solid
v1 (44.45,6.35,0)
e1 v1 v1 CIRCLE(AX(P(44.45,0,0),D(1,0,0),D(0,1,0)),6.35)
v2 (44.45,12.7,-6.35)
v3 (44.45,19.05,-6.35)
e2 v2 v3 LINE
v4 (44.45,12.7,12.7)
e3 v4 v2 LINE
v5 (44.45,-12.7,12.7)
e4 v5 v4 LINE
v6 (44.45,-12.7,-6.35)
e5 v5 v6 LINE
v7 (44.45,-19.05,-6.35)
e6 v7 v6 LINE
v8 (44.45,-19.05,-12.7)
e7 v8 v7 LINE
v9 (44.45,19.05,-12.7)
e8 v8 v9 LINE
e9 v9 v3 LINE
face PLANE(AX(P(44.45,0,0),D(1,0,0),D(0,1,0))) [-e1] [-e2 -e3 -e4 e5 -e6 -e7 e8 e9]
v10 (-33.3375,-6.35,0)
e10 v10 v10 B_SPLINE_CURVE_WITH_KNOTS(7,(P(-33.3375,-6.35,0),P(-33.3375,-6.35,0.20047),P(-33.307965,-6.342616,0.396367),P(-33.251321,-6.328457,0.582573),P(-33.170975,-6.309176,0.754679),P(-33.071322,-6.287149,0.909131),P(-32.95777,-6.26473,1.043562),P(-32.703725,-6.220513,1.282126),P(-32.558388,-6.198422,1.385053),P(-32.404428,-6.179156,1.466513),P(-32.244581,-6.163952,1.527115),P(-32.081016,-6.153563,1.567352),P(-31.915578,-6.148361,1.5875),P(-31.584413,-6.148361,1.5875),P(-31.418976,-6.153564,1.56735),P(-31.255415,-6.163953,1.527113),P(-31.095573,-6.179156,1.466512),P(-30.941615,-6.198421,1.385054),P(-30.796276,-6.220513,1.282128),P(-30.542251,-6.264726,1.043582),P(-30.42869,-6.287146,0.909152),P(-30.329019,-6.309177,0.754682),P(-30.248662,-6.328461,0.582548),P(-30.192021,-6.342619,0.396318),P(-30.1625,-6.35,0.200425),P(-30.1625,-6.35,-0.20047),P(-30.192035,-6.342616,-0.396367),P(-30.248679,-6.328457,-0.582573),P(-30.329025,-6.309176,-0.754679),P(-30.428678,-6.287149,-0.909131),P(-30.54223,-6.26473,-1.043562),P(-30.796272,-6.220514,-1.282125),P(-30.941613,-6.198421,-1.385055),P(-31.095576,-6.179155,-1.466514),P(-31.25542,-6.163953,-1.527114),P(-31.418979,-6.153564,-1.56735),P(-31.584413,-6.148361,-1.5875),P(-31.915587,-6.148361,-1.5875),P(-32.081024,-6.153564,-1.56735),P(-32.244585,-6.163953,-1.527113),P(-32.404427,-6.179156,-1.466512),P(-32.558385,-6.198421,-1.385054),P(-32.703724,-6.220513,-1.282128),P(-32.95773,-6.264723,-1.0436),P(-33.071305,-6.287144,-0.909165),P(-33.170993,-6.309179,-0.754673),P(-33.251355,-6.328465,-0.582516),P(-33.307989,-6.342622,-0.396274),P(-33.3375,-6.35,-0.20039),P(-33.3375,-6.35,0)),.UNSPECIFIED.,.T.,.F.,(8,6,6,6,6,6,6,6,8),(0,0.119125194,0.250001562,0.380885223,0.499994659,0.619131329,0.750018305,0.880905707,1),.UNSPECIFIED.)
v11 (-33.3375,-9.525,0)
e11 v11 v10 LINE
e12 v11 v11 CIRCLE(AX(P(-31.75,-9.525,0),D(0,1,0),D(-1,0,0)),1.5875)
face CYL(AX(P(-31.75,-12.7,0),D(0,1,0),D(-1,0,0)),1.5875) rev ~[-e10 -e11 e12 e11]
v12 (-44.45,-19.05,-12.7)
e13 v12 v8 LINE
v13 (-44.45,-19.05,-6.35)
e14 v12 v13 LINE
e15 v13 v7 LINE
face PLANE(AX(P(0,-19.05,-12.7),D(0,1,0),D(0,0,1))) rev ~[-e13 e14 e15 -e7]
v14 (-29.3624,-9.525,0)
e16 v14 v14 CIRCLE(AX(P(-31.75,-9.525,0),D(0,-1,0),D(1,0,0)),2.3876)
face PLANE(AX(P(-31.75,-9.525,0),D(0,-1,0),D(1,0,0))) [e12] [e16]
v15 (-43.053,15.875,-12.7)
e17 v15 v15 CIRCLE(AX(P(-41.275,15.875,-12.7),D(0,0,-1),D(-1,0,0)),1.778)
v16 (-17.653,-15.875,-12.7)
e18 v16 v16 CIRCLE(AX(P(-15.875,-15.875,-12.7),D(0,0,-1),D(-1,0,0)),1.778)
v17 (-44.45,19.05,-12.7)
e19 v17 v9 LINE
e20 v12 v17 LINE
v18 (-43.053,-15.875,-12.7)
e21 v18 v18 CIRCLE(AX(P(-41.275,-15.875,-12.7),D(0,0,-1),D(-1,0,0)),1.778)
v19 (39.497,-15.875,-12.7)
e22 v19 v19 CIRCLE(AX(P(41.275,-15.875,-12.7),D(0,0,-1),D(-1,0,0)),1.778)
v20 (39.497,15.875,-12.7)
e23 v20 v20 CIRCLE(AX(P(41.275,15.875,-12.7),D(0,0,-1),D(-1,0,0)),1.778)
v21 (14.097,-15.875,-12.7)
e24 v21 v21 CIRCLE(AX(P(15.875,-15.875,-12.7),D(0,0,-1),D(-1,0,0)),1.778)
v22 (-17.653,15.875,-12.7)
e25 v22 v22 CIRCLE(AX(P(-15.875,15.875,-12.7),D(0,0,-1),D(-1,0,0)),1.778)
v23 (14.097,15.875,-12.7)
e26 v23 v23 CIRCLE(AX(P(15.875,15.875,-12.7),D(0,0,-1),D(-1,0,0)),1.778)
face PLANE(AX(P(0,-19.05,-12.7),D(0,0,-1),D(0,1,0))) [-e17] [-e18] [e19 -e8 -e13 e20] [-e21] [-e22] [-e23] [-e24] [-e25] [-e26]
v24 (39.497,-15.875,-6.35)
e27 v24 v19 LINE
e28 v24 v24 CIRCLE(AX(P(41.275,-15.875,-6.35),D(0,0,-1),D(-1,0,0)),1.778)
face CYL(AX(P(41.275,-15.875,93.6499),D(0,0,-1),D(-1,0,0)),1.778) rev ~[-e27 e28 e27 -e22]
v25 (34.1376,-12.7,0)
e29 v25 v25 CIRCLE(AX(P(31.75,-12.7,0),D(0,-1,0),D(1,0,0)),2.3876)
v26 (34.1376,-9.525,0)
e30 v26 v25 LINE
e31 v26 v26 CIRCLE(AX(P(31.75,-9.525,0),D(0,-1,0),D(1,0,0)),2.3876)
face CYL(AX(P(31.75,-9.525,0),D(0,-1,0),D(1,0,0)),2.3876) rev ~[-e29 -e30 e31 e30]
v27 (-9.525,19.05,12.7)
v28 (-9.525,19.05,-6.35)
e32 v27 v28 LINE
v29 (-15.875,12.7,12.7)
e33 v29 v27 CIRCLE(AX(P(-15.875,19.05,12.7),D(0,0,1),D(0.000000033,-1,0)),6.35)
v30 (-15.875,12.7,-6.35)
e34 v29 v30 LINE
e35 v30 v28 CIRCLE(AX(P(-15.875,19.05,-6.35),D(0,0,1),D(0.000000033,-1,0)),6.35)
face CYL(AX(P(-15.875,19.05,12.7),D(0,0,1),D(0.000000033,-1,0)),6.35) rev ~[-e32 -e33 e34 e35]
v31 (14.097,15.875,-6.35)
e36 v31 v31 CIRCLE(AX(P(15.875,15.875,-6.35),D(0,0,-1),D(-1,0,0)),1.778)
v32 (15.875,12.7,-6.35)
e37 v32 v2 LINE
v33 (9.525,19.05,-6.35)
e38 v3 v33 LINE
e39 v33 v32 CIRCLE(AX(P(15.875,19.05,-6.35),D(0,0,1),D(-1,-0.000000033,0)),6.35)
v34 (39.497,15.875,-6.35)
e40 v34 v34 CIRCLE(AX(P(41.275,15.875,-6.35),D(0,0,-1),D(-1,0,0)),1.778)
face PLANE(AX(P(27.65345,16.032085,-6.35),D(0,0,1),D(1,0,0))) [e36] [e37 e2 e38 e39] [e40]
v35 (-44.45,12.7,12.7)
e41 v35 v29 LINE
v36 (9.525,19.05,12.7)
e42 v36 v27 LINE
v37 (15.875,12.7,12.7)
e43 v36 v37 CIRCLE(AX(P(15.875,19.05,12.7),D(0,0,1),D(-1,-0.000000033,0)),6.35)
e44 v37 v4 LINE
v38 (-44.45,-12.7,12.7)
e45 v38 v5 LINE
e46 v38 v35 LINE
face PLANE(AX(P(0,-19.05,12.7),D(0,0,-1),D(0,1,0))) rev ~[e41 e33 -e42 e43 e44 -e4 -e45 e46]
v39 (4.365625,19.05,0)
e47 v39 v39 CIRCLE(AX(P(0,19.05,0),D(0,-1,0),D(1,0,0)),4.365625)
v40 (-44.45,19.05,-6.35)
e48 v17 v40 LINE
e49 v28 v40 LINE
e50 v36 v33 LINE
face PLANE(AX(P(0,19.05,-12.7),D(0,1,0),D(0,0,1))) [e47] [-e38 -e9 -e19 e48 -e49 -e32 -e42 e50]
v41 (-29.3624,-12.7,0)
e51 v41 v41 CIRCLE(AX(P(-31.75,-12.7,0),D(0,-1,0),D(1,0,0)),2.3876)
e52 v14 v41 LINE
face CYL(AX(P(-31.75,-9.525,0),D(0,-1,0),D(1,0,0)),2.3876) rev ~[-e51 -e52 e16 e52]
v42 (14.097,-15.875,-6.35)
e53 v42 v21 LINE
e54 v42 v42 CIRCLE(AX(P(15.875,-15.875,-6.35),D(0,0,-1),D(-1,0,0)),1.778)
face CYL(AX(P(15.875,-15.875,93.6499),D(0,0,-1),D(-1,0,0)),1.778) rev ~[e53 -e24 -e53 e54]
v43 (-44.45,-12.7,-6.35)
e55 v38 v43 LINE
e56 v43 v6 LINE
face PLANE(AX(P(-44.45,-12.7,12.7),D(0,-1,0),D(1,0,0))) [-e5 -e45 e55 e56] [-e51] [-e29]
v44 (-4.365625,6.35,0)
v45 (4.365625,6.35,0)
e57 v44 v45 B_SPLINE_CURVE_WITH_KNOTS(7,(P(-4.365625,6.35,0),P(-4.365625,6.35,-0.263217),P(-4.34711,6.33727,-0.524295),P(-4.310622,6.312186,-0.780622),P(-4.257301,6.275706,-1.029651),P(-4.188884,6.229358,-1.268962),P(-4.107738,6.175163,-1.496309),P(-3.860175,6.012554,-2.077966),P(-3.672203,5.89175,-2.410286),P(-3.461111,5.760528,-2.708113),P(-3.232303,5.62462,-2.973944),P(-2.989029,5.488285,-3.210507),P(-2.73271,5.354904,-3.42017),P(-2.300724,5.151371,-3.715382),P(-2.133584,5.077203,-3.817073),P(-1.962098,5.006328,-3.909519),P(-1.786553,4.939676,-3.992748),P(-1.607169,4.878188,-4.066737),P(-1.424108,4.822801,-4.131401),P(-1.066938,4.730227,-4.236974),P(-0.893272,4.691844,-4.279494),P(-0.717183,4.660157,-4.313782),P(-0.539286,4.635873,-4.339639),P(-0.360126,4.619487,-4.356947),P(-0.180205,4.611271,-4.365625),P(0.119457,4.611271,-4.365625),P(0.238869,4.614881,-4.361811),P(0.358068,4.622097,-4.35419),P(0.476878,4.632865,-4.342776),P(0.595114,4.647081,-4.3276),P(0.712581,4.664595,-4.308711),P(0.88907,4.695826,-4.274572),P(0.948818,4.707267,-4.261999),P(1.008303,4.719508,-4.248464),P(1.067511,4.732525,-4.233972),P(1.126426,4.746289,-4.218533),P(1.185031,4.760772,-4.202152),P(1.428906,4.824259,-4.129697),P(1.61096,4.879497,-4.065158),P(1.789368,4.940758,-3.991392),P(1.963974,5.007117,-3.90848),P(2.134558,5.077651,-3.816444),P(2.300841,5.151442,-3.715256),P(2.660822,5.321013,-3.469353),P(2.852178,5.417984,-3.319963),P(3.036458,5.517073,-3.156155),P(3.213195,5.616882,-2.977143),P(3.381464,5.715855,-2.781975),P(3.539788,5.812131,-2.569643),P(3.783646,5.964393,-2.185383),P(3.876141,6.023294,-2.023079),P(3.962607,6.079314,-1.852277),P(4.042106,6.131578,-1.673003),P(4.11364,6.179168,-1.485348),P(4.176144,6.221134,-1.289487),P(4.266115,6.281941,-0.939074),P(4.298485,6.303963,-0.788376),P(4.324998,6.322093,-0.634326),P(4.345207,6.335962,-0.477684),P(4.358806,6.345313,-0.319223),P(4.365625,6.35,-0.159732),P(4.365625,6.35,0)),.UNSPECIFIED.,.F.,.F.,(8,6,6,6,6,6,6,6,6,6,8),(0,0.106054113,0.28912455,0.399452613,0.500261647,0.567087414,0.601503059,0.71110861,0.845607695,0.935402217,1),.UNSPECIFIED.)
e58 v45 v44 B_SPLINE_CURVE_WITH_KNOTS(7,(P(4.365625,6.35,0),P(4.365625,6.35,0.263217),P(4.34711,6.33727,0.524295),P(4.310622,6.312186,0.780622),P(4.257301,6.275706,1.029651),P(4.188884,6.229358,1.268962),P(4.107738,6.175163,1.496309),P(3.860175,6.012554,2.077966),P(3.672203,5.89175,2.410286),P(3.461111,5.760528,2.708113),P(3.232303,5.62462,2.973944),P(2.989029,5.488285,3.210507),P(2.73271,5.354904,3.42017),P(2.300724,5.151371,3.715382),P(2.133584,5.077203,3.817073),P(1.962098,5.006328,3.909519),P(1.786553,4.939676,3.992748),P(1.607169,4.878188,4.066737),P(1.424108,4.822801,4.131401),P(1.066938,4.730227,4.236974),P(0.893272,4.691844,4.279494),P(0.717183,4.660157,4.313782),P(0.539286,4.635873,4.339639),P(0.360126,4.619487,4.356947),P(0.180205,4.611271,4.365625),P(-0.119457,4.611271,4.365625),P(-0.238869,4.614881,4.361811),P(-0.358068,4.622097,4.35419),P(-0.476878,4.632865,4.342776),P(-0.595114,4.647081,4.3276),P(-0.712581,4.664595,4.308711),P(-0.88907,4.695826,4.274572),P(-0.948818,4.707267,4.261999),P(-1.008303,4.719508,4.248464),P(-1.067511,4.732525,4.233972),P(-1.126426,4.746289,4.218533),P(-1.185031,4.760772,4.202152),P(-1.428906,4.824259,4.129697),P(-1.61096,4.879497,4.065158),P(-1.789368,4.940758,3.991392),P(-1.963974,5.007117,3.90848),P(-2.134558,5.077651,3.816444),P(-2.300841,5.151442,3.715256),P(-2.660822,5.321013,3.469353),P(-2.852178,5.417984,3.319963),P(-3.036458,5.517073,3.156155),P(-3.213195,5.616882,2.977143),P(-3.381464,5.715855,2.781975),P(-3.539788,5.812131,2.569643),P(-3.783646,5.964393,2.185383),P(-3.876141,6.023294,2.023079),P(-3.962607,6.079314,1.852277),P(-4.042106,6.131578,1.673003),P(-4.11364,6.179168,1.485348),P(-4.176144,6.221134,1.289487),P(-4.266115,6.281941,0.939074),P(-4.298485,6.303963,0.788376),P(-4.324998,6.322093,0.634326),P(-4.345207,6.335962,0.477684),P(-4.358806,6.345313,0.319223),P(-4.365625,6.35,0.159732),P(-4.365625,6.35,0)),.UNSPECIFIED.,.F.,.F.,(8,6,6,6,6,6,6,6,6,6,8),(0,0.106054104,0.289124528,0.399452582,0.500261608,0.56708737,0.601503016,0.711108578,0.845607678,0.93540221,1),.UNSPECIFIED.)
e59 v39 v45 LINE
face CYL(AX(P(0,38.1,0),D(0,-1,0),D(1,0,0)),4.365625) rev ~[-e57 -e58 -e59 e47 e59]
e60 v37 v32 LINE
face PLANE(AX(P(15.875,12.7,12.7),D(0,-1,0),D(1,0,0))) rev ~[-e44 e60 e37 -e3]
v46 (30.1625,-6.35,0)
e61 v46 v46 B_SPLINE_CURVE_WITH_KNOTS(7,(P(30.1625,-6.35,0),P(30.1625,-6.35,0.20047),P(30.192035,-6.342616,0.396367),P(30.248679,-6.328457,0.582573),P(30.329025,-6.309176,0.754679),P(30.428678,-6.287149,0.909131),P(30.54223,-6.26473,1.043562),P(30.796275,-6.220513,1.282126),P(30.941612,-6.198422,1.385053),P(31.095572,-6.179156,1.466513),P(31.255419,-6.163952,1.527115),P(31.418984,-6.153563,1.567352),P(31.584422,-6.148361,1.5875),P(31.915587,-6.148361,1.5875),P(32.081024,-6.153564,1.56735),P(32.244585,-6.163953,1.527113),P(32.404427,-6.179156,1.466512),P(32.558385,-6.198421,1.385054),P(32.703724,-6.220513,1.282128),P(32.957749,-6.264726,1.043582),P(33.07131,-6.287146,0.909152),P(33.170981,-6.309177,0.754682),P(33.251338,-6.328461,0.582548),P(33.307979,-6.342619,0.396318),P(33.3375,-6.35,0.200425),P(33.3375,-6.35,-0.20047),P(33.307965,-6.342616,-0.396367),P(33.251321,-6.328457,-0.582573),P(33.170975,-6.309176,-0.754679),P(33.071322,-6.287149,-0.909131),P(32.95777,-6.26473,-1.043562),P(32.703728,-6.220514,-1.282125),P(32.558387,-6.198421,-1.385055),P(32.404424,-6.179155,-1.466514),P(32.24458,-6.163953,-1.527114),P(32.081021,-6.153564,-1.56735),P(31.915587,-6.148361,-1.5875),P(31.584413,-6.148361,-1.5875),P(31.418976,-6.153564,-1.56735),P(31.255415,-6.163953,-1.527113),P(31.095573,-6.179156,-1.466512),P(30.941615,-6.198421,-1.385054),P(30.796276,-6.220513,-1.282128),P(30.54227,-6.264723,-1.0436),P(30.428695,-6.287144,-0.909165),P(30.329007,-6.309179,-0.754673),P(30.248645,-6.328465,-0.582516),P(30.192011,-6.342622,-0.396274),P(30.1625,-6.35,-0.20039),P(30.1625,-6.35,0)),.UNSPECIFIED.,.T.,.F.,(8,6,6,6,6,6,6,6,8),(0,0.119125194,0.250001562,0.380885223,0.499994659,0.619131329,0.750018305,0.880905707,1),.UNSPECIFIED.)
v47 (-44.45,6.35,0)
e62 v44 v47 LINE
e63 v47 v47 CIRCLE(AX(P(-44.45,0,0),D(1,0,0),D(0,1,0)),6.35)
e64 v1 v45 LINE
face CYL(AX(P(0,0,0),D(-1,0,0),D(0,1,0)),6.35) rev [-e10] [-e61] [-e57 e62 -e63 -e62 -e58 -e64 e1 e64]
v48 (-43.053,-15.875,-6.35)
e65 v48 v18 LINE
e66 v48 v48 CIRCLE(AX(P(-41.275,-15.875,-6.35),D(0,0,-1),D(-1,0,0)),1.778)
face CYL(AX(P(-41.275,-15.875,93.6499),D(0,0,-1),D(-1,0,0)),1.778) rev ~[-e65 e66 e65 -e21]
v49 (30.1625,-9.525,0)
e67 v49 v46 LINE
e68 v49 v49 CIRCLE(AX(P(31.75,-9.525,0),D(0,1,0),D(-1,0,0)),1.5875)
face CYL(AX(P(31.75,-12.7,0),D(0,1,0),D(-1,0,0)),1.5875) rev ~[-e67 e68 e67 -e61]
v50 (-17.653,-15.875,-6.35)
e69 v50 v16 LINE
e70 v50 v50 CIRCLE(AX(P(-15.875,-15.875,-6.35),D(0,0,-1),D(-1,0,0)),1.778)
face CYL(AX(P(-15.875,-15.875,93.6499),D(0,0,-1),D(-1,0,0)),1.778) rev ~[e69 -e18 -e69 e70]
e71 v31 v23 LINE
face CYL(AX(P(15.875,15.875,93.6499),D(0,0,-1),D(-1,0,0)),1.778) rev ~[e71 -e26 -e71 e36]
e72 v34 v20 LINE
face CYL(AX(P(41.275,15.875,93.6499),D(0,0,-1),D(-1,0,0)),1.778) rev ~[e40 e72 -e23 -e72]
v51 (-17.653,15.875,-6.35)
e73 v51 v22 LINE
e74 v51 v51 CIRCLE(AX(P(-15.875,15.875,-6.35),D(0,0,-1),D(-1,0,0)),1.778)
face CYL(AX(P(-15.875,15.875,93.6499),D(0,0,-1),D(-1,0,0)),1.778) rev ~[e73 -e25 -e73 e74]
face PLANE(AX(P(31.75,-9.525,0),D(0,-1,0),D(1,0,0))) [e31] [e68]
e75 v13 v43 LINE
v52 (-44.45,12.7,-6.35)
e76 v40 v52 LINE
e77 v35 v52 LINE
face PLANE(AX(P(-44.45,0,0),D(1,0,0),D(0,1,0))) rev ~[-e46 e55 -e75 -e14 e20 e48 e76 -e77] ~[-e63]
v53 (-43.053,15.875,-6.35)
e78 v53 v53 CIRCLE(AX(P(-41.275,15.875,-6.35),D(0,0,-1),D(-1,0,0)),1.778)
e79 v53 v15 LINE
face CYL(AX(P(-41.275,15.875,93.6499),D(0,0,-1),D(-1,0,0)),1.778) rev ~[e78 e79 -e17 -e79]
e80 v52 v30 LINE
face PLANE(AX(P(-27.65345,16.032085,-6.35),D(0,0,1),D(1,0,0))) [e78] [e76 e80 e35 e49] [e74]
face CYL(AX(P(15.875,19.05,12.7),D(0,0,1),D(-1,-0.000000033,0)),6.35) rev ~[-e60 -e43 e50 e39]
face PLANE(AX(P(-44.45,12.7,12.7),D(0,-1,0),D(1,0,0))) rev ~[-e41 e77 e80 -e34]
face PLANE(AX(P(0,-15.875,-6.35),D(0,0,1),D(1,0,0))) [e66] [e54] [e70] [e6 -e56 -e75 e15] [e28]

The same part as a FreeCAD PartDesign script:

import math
import FreeCAD as App
import Part
import Sketcher
from FreeCAD import Vector
Q = App.Units.Quantity


def add_polygon(sketch, points):
    """Adds a closed chain of lines whose ends are joined by coincident constraints."""
    first, n = sketch.GeometryCount, len(points)
    for a, b in zip(points, points[1:] + points[:1]):
        sketch.addGeometry(Part.LineSegment(App.Vector(*a, 0), App.Vector(*b, 0)), False)
    for i in range(n):
        sketch.addConstraint(Sketcher.Constraint("Coincident", first + i, 2, first + (i + 1) % n, 1))

doc = App.newDocument("Part")
body = doc.addObject("PartDesign::Body", "Body")

sketch1 = body.newObject("Sketcher::SketchObject", "Sketch")
sketch1.AttachmentSupport = (doc.getObject("YZ_Plane"), [""])
sketch1.MapMode = "FlatFace"
add_polygon(sketch1, [(-19, 13), (-19, -13), (19, -13), (19, 13)])
sketch1.addGeometry(Part.Circle(Vector(0, 0, 0), Vector(0, 0, 1), 6), False)
sketch1.addConstraint(Sketcher.Constraint("Vertical", 0))
sketch1.addConstraint(Sketcher.Constraint("Horizontal", 1))
sketch1.addConstraint(Sketcher.Constraint("Vertical", 2))
sketch1.addConstraint(Sketcher.Constraint("Horizontal", 3))
sketch1.addConstraint(Sketcher.Constraint("Coincident", 4, 3, -1, 1))
sketch1.addConstraint(Sketcher.Constraint("Symmetric", 0, 2, 2, 2, -1, 1))
sketch1.addConstraint(Sketcher.Constraint("Diameter", 4, Q("0.5 in")))
sketch1.addConstraint(Sketcher.Constraint("DistanceY", 0, 2, 0, 1, Q("1 in")))
sketch1.addConstraint(Sketcher.Constraint("DistanceX", 1, 1, 1, 2, Q("1.5 in")))
pad1 = body.newObject("PartDesign::Pad", "Pad")
pad1.Profile = sketch1
pad1.Length = Q("3.5 in")
pad1.Midplane = True

sketch2 = body.newObject("Sketcher::SketchObject", "Sketch001")
sketch2.AttachmentSupport = (doc.getObject("XY_Plane"), [""])
sketch2.MapMode = "FlatFace"
sketch2.AttachmentOffset = App.Placement(Vector(0, 0, 0.5 * 25.4), App.Rotation())
sketch2.addGeometry(Part.LineSegment(Vector(-10, 19, 0), Vector(-44, 19, 0)), False)
sketch2.addGeometry(Part.LineSegment(Vector(-44, 19, 0), Vector(-44, 13, 0)), False)
sketch2.addGeometry(Part.LineSegment(Vector(-44, 13, 0), Vector(-16, 13, 0)), False)
sketch2.addGeometry(Part.ArcOfCircle(Part.Circle(Vector(-16, 19, 0), Vector(0, 0, 1), 6), math.radians(-90), math.radians(0)), False)
sketch2.addGeometry(Part.LineSegment(Vector(44, 13, 0), Vector(44, 19, 0)), False)
sketch2.addGeometry(Part.LineSegment(Vector(44, 19, 0), Vector(10, 19, 0)), False)
sketch2.addGeometry(Part.ArcOfCircle(Part.Circle(Vector(16, 19, 0), Vector(0, 0, 1), 6), math.radians(-180), math.radians(-90)), False)
sketch2.addGeometry(Part.LineSegment(Vector(16, 13, 0), Vector(44, 13, 0)), False)
add_polygon(sketch2, [(-44, -13), (-44, -19), (44, -19), (44, -13)])
sketch2.addConstraint(Sketcher.Constraint("Coincident", 0, 2, 1, 1))
sketch2.addConstraint(Sketcher.Constraint("Coincident", 1, 2, 2, 1))
sketch2.addConstraint(Sketcher.Constraint("Tangent", 2, 2, 3, 1))
sketch2.addConstraint(Sketcher.Constraint("Coincident", 3, 2, 0, 1))
sketch2.addConstraint(Sketcher.Constraint("Coincident", 4, 2, 5, 1))
sketch2.addConstraint(Sketcher.Constraint("Coincident", 5, 2, 6, 1))
sketch2.addConstraint(Sketcher.Constraint("Tangent", 6, 2, 7, 1))
sketch2.addConstraint(Sketcher.Constraint("Coincident", 7, 2, 4, 1))
sketch2.addConstraint(Sketcher.Constraint("Horizontal", 0))
sketch2.addConstraint(Sketcher.Constraint("Vertical", 1))
sketch2.addConstraint(Sketcher.Constraint("Horizontal", 2))
sketch2.addConstraint(Sketcher.Constraint("Vertical", 4))
sketch2.addConstraint(Sketcher.Constraint("Horizontal", 5))
sketch2.addConstraint(Sketcher.Constraint("Horizontal", 7))
sketch2.addConstraint(Sketcher.Constraint("Vertical", 8))
sketch2.addConstraint(Sketcher.Constraint("Horizontal", 9))
sketch2.addConstraint(Sketcher.Constraint("Vertical", 10))
sketch2.addConstraint(Sketcher.Constraint("Horizontal", 11))
sketch2.addConstraint(Sketcher.Constraint("Equal", 3, 6))
sketch2.addConstraint(Sketcher.Constraint("Symmetric", 4, 2, 8, 2, -1, 1))
sketch2.addConstraint(Sketcher.Constraint("Symmetric", 0, 2, 9, 2, -1, 1))
sketch2.addConstraint(Sketcher.Constraint("Symmetric", 3, 3, 6, 3, -2))
sketch2.addConstraint(Sketcher.Constraint("Symmetric", 7, 2, 10, 2, -1))
sketch2.addConstraint(Sketcher.Constraint("Horizontal", 6, 3, 0, 2))
sketch2.addConstraint(Sketcher.Constraint("Radius", 3, Q("0.25 in")))
sketch2.addConstraint(Sketcher.Constraint("DistanceX", 9, 1, 9, 2, Q("3.5 in")))
sketch2.addConstraint(Sketcher.Constraint("DistanceX", 3, 2, 6, 3, Q("1 in")))
sketch2.addConstraint(Sketcher.Constraint("DistanceY", 10, 2, 7, 2, Q("1 in")))
pocket1 = body.newObject("PartDesign::Pocket", "Pocket")
pocket1.Profile = sketch2
pocket1.Length = Q("0.75 in")

sketch3 = body.newObject("Sketcher::SketchObject", "Sketch002")
sketch3.AttachmentSupport = (doc.getObject("XZ_Plane"), [""])
sketch3.MapMode = "FlatFace"
sketch3.AttachmentOffset = App.Placement(Vector(0, 0, -0.75 * 25.4), App.Rotation())
sketch3.addGeometry(Part.Circle(Vector(0, 0, 0), Vector(0, 0, 1), 4.4), False)
sketch3.addConstraint(Sketcher.Constraint("Coincident", 0, 3, -1, 1))
sketch3.addConstraint(Sketcher.Constraint("Diameter", 0, Q("0.34375 in")))
doc.recompute()
hole = body.newObject("PartDesign::Hole", "Hole")
hole.Profile = sketch3
hole.ThreadType = "None"
hole.Diameter = Q("0.34375 in")
hole.DepthType = "Dimension"
hole.Depth = Q("0.75 in")
hole.DrillPoint = "Flat"
hole.Reversed = True

sketch4 = body.newObject("Sketcher::SketchObject", "Sketch003")
sketch4.AttachmentSupport = (doc.getObject("XZ_Plane"), [""])
sketch4.MapMode = "FlatFace"
sketch4.AttachmentOffset = App.Placement(Vector(0, 0, 0.5 * 25.4), App.Rotation())
sketch4.addGeometry(Part.Circle(Vector(-31.8, 0, 0), Vector(0, 0, 1), 1.6), False)
sketch4.addGeometry(Part.Circle(Vector(31.8, 0, 0), Vector(0, 0, 1), 1.6), False)
sketch4.addConstraint(Sketcher.Constraint("Equal", 0, 1))
sketch4.addConstraint(Sketcher.Constraint("Symmetric", 0, 3, 1, 3, -1, 1))
sketch4.addConstraint(Sketcher.Constraint("PointOnObject", 0, 3, -1))
sketch4.addConstraint(Sketcher.Constraint("Diameter", 0, Q("0.125 in")))
sketch4.addConstraint(Sketcher.Constraint("DistanceX", 0, 3, 1, 3, Q("2.5 in")))
doc.recompute()
hole2 = body.newObject("PartDesign::Hole", "Hole001")
hole2.Profile = sketch4
hole2.ThreadType = "None"
hole2.Diameter = Q("0.125 in")
hole2.DepthType = "Dimension"
hole2.Depth = Q("0.5 in")
hole2.DrillPoint = "Flat"
hole2.HoleCutType = "Counterbore"
hole2.HoleCutDiameter = Q("0.188 in")
hole2.HoleCutDepth = Q("0.125 in")

sketch5 = body.newObject("Sketcher::SketchObject", "Sketch004")
sketch5.AttachmentSupport = (doc.getObject("XY_Plane"), [""])
sketch5.MapMode = "FlatFace"
sketch5.AttachmentOffset = App.Placement(Vector(0, 0, -0.25 * 25.4), App.Rotation())
sketch5.addGeometry(Part.Circle(Vector(-41.3, 15.9, 0), Vector(0, 0, 1), 1.8), False)
sketch5.addGeometry(Part.Circle(Vector(-15.9, 15.9, 0), Vector(0, 0, 1), 1.8), False)
sketch5.addGeometry(Part.Circle(Vector(15.9, 15.9, 0), Vector(0, 0, 1), 1.8), False)
sketch5.addGeometry(Part.Circle(Vector(41.3, 15.9, 0), Vector(0, 0, 1), 1.8), False)
sketch5.addGeometry(Part.Circle(Vector(41.3, -15.9, 0), Vector(0, 0, 1), 1.8), False)
sketch5.addGeometry(Part.Circle(Vector(15.9, -15.9, 0), Vector(0, 0, 1), 1.8), False)
sketch5.addGeometry(Part.Circle(Vector(-15.9, -15.9, 0), Vector(0, 0, 1), 1.8), False)
sketch5.addGeometry(Part.Circle(Vector(-41.3, -15.9, 0), Vector(0, 0, 1), 1.8), False)
sketch5.addConstraint(Sketcher.Constraint("Equal", 0, 1))
sketch5.addConstraint(Sketcher.Constraint("Equal", 1, 2))
sketch5.addConstraint(Sketcher.Constraint("Equal", 2, 3))
sketch5.addConstraint(Sketcher.Constraint("Equal", 3, 4))
sketch5.addConstraint(Sketcher.Constraint("Equal", 4, 5))
sketch5.addConstraint(Sketcher.Constraint("Equal", 5, 6))
sketch5.addConstraint(Sketcher.Constraint("Equal", 6, 7))
sketch5.addConstraint(Sketcher.Constraint("Symmetric", 0, 3, 4, 3, -1, 1))
sketch5.addConstraint(Sketcher.Constraint("Symmetric", 1, 3, 5, 3, -1, 1))
sketch5.addConstraint(Sketcher.Constraint("Symmetric", 2, 3, 6, 3, -1, 1))
sketch5.addConstraint(Sketcher.Constraint("Symmetric", 3, 3, 7, 3, -1, 1))
sketch5.addConstraint(Sketcher.Constraint("Symmetric", 1, 3, 2, 3, -2))
sketch5.addConstraint(Sketcher.Constraint("Symmetric", 0, 3, 3, 3, -2))
sketch5.addConstraint(Sketcher.Constraint("Horizontal", 0, 3, 1, 3))
sketch5.addConstraint(Sketcher.Constraint("Diameter", 0, Q("0.14 in")))
sketch5.addConstraint(Sketcher.Constraint("DistanceX", 0, 3, 1, 3, Q("1 in")))
sketch5.addConstraint(Sketcher.Constraint("DistanceX", 1, 3, 2, 3, Q("1.25 in")))
sketch5.addConstraint(Sketcher.Constraint("DistanceY", 4, 3, 3, 3, Q("1.25 in")))
doc.recompute()
hole3 = body.newObject("PartDesign::Hole", "Hole002")
hole3.Profile = sketch5
hole3.ThreadType = "None"
hole3.Diameter = Q("0.14 in")
hole3.DepthType = "ThroughAll"

doc.recompute()
